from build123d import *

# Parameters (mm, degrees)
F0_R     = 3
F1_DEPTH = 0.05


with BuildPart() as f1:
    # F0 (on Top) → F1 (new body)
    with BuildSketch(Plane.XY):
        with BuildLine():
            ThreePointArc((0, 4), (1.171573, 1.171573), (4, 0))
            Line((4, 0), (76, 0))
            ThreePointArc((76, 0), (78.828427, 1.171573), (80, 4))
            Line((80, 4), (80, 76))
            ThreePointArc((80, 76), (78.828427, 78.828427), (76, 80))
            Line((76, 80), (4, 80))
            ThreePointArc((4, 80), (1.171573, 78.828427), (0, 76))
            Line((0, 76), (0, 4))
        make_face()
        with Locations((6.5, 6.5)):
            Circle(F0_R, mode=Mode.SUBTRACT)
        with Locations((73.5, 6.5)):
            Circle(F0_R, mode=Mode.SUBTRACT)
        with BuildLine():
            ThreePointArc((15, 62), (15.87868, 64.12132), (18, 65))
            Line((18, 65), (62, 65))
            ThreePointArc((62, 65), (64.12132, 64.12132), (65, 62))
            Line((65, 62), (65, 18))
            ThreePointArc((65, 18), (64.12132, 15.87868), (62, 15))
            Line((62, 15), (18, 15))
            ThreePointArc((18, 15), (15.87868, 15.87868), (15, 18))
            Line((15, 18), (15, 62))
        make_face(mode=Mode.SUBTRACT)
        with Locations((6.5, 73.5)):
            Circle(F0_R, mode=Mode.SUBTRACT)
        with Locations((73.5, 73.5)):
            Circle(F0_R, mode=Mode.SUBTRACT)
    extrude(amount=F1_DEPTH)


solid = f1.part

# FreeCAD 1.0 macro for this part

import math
import FreeCAD as App
import Part
import Sketcher
from FreeCAD import Vector
Q = App.Units.Quantity

doc = App.newDocument("Part")
body = doc.addObject("PartDesign::Body", "Body")

sketch1 = body.newObject("Sketcher::SketchObject", "Sketch")
sketch1.AttachmentSupport = (doc.getObject("XY_Plane"), [""])
sketch1.MapMode = "FlatFace"
sketch1.addGeometry(Part.ArcOfCircle(Part.Circle(Vector(4, 4, 0), Vector(0, 0, 1), 4), math.radians(-179.999994), math.radians(-90.000006)), False)
sketch1.addGeometry(Part.LineSegment(Vector(4, 0, 0), Vector(76, 0, 0)), False)
sketch1.addGeometry(Part.ArcOfCircle(Part.Circle(Vector(76, 4, 0), Vector(0, 0, 1), 4), math.radians(-89.999994), math.radians(-0.000006)), False)
sketch1.addGeometry(Part.LineSegment(Vector(80, 4, 0), Vector(80, 76, 0)), False)
sketch1.addGeometry(Part.ArcOfCircle(Part.Circle(Vector(76, 76, 0), Vector(0, 0, 1), 4), math.radians(0.000006), math.radians(89.999994)), False)
sketch1.addGeometry(Part.LineSegment(Vector(76, 80, 0), Vector(4, 80, 0)), False)
sketch1.addGeometry(Part.ArcOfCircle(Part.Circle(Vector(4, 76, 0), Vector(0, 0, 1), 4), math.radians(90.000006), math.radians(179.999994)), False)
sketch1.addGeometry(Part.LineSegment(Vector(0, 76, 0), Vector(0, 4, 0)), False)
sketch1.addGeometry(Part.Circle(Vector(6.5, 6.5, 0), Vector(0, 0, 1), 3), False)
sketch1.addGeometry(Part.Circle(Vector(73.5, 6.5, 0), Vector(0, 0, 1), 3), False)
sketch1.addGeometry(Part.Circle(Vector(6.5, 73.5, 0), Vector(0, 0, 1), 3), False)
sketch1.addGeometry(Part.LineSegment(Vector(15, 18, 0), Vector(15, 62, 0)), False)
sketch1.addGeometry(Part.ArcOfCircle(Part.Circle(Vector(18.000001, 61.999999, 0), Vector(0, 0, 1), 3.000001), math.radians(90.000022), math.radians(179.999978)), False)
sketch1.addGeometry(Part.LineSegment(Vector(18, 65, 0), Vector(62, 65, 0)), False)
sketch1.addGeometry(Part.ArcOfCircle(Part.Circle(Vector(61.999999, 61.999999, 0), Vector(0, 0, 1), 3.000001), math.radians(0.000022), math.radians(89.999978)), False)
sketch1.addGeometry(Part.LineSegment(Vector(65, 62, 0), Vector(65, 18, 0)), False)
sketch1.addGeometry(Part.ArcOfCircle(Part.Circle(Vector(61.999999, 18.000001, 0), Vector(0, 0, 1), 3.000001), math.radians(-89.999978), math.radians(-0.000022)), False)
sketch1.addGeometry(Part.LineSegment(Vector(62, 15, 0), Vector(18, 15, 0)), False)
sketch1.addGeometry(Part.ArcOfCircle(Part.Circle(Vector(18.000001, 18.000001, 0), Vector(0, 0, 1), 3.000001), math.radians(-179.999978), math.radians(-90.000022)), False)
sketch1.addGeometry(Part.Circle(Vector(73.5, 73.5, 0), Vector(0, 0, 1), 3), False)
sketch1.addConstraint(Sketcher.Constraint("Tangent", 0, 2, 1, 1))
sketch1.addConstraint(Sketcher.Constraint("Tangent", 1, 2, 2, 1))
sketch1.addConstraint(Sketcher.Constraint("Tangent", 2, 2, 3, 1))
sketch1.addConstraint(Sketcher.Constraint("Tangent", 3, 2, 4, 1))
sketch1.addConstraint(Sketcher.Constraint("Tangent", 4, 2, 5, 1))
sketch1.addConstraint(Sketcher.Constraint("Tangent", 5, 2, 6, 1))
sketch1.addConstraint(Sketcher.Constraint("Tangent", 6, 2, 7, 1))
sketch1.addConstraint(Sketcher.Constraint("Tangent", 7, 2, 0, 1))
sketch1.addConstraint(Sketcher.Constraint("Tangent", 11, 2, 12, 2))
sketch1.addConstraint(Sketcher.Constraint("Tangent", 12, 1, 13, 1))
sketch1.addConstraint(Sketcher.Constraint("Tangent", 13, 2, 14, 2))
sketch1.addConstraint(Sketcher.Constraint("Tangent", 14, 1, 15, 1))
sketch1.addConstraint(Sketcher.Constraint("Tangent", 15, 2, 16, 2))
sketch1.addConstraint(Sketcher.Constraint("Tangent", 16, 1, 17, 1))
sketch1.addConstraint(Sketcher.Constraint("Tangent", 17, 2, 18, 2))
sketch1.addConstraint(Sketcher.Constraint("Tangent", 18, 1, 11, 1))
sketch1.addConstraint(Sketcher.Constraint("Horizontal", 1))
sketch1.addConstraint(Sketcher.Constraint("Vertical", 3))
sketch1.addConstraint(Sketcher.Constraint("Horizontal", 5))
sketch1.addConstraint(Sketcher.Constraint("Vertical", 7))
sketch1.addConstraint(Sketcher.Constraint("Vertical", 11))
sketch1.addConstraint(Sketcher.Constraint("Horizontal", 13))
sketch1.addConstraint(Sketcher.Constraint("Vertical", 15))
sketch1.addConstraint(Sketcher.Constraint("Horizontal", 17))
sketch1.addConstraint(Sketcher.Constraint("Equal", 0, 2))
sketch1.addConstraint(Sketcher.Constraint("Equal", 2, 4))
sketch1.addConstraint(Sketcher.Constraint("Equal", 4, 6))
sketch1.addConstraint(Sketcher.Constraint("Equal", 8, 9))
sketch1.addConstraint(Sketcher.Constraint("Equal", 9, 10))
sketch1.addConstraint(Sketcher.Constraint("Equal", 10, 12))
sketch1.addConstraint(Sketcher.Constraint("Equal", 12, 14))
sketch1.addConstraint(Sketcher.Constraint("Equal", 14, 16))
sketch1.addConstraint(Sketcher.Constraint("Equal", 16, 18))
sketch1.addConstraint(Sketcher.Constraint("Equal", 18, 19))
sketch1.addConstraint(Sketcher.Constraint("PointOnObject", 0, 2, -1))
sketch1.addConstraint(Sketcher.Constraint("PointOnObject", 6, 2, -2))
sketch1.addConstraint(Sketcher.Constraint("Horizontal", 8, 3, 9, 3))
sketch1.addConstraint(Sketcher.Constraint("Horizontal", 10, 3, 19, 3))
sketch1.addConstraint(Sketcher.Constraint("Vertical", 8, 3, 10, 3))
sketch1.addConstraint(Sketcher.Constraint("Vertical", 9, 3, 19, 3))
sketch1.addConstraint(Sketcher.Constraint("Equal", 5, 3))
sketch1.addConstraint(Sketcher.Constraint("Equal", 17, 11))
sketch1.addConstraint(Sketcher.Constraint("Diameter", 8, Q("6 mm")))
sketch1.addConstraint(Sketcher.Constraint("Radius", 0, Q("4 mm")))
sketch1.addConstraint(Sketcher.Constraint("DistanceX", 1, 1, 1, 2, Q("72 mm")))
sketch1.addConstraint(Sketcher.Constraint("DistanceX", 13, 1, 13, 2, Q("44 mm")))
sketch1.addConstraint(Sketcher.Constraint("DistanceX", -1, 1, 12, 3, Q("18.000001 mm")))
sketch1.addConstraint(Sketcher.Constraint("DistanceY", -1, 1, 12, 3, Q("61.999999 mm")))
sketch1.addConstraint(Sketcher.Constraint("DistanceX", 8, 3, 9, 3, Q("67 mm")))
sketch1.addConstraint(Sketcher.Constraint("DistanceY", 8, 3, 10, 3, Q("67 mm")))
sketch1.addConstraint(Sketcher.Constraint("DistanceX", -1, 1, 8, 3, Q("6.5 mm")))
sketch1.addConstraint(Sketcher.Constraint("DistanceY", -1, 1, 8, 3, Q("6.5 mm")))
pad1 = body.newObject("PartDesign::Pad", "Pad")
pad1.Profile = sketch1
pad1.Length = 0.05

doc.recompute()
